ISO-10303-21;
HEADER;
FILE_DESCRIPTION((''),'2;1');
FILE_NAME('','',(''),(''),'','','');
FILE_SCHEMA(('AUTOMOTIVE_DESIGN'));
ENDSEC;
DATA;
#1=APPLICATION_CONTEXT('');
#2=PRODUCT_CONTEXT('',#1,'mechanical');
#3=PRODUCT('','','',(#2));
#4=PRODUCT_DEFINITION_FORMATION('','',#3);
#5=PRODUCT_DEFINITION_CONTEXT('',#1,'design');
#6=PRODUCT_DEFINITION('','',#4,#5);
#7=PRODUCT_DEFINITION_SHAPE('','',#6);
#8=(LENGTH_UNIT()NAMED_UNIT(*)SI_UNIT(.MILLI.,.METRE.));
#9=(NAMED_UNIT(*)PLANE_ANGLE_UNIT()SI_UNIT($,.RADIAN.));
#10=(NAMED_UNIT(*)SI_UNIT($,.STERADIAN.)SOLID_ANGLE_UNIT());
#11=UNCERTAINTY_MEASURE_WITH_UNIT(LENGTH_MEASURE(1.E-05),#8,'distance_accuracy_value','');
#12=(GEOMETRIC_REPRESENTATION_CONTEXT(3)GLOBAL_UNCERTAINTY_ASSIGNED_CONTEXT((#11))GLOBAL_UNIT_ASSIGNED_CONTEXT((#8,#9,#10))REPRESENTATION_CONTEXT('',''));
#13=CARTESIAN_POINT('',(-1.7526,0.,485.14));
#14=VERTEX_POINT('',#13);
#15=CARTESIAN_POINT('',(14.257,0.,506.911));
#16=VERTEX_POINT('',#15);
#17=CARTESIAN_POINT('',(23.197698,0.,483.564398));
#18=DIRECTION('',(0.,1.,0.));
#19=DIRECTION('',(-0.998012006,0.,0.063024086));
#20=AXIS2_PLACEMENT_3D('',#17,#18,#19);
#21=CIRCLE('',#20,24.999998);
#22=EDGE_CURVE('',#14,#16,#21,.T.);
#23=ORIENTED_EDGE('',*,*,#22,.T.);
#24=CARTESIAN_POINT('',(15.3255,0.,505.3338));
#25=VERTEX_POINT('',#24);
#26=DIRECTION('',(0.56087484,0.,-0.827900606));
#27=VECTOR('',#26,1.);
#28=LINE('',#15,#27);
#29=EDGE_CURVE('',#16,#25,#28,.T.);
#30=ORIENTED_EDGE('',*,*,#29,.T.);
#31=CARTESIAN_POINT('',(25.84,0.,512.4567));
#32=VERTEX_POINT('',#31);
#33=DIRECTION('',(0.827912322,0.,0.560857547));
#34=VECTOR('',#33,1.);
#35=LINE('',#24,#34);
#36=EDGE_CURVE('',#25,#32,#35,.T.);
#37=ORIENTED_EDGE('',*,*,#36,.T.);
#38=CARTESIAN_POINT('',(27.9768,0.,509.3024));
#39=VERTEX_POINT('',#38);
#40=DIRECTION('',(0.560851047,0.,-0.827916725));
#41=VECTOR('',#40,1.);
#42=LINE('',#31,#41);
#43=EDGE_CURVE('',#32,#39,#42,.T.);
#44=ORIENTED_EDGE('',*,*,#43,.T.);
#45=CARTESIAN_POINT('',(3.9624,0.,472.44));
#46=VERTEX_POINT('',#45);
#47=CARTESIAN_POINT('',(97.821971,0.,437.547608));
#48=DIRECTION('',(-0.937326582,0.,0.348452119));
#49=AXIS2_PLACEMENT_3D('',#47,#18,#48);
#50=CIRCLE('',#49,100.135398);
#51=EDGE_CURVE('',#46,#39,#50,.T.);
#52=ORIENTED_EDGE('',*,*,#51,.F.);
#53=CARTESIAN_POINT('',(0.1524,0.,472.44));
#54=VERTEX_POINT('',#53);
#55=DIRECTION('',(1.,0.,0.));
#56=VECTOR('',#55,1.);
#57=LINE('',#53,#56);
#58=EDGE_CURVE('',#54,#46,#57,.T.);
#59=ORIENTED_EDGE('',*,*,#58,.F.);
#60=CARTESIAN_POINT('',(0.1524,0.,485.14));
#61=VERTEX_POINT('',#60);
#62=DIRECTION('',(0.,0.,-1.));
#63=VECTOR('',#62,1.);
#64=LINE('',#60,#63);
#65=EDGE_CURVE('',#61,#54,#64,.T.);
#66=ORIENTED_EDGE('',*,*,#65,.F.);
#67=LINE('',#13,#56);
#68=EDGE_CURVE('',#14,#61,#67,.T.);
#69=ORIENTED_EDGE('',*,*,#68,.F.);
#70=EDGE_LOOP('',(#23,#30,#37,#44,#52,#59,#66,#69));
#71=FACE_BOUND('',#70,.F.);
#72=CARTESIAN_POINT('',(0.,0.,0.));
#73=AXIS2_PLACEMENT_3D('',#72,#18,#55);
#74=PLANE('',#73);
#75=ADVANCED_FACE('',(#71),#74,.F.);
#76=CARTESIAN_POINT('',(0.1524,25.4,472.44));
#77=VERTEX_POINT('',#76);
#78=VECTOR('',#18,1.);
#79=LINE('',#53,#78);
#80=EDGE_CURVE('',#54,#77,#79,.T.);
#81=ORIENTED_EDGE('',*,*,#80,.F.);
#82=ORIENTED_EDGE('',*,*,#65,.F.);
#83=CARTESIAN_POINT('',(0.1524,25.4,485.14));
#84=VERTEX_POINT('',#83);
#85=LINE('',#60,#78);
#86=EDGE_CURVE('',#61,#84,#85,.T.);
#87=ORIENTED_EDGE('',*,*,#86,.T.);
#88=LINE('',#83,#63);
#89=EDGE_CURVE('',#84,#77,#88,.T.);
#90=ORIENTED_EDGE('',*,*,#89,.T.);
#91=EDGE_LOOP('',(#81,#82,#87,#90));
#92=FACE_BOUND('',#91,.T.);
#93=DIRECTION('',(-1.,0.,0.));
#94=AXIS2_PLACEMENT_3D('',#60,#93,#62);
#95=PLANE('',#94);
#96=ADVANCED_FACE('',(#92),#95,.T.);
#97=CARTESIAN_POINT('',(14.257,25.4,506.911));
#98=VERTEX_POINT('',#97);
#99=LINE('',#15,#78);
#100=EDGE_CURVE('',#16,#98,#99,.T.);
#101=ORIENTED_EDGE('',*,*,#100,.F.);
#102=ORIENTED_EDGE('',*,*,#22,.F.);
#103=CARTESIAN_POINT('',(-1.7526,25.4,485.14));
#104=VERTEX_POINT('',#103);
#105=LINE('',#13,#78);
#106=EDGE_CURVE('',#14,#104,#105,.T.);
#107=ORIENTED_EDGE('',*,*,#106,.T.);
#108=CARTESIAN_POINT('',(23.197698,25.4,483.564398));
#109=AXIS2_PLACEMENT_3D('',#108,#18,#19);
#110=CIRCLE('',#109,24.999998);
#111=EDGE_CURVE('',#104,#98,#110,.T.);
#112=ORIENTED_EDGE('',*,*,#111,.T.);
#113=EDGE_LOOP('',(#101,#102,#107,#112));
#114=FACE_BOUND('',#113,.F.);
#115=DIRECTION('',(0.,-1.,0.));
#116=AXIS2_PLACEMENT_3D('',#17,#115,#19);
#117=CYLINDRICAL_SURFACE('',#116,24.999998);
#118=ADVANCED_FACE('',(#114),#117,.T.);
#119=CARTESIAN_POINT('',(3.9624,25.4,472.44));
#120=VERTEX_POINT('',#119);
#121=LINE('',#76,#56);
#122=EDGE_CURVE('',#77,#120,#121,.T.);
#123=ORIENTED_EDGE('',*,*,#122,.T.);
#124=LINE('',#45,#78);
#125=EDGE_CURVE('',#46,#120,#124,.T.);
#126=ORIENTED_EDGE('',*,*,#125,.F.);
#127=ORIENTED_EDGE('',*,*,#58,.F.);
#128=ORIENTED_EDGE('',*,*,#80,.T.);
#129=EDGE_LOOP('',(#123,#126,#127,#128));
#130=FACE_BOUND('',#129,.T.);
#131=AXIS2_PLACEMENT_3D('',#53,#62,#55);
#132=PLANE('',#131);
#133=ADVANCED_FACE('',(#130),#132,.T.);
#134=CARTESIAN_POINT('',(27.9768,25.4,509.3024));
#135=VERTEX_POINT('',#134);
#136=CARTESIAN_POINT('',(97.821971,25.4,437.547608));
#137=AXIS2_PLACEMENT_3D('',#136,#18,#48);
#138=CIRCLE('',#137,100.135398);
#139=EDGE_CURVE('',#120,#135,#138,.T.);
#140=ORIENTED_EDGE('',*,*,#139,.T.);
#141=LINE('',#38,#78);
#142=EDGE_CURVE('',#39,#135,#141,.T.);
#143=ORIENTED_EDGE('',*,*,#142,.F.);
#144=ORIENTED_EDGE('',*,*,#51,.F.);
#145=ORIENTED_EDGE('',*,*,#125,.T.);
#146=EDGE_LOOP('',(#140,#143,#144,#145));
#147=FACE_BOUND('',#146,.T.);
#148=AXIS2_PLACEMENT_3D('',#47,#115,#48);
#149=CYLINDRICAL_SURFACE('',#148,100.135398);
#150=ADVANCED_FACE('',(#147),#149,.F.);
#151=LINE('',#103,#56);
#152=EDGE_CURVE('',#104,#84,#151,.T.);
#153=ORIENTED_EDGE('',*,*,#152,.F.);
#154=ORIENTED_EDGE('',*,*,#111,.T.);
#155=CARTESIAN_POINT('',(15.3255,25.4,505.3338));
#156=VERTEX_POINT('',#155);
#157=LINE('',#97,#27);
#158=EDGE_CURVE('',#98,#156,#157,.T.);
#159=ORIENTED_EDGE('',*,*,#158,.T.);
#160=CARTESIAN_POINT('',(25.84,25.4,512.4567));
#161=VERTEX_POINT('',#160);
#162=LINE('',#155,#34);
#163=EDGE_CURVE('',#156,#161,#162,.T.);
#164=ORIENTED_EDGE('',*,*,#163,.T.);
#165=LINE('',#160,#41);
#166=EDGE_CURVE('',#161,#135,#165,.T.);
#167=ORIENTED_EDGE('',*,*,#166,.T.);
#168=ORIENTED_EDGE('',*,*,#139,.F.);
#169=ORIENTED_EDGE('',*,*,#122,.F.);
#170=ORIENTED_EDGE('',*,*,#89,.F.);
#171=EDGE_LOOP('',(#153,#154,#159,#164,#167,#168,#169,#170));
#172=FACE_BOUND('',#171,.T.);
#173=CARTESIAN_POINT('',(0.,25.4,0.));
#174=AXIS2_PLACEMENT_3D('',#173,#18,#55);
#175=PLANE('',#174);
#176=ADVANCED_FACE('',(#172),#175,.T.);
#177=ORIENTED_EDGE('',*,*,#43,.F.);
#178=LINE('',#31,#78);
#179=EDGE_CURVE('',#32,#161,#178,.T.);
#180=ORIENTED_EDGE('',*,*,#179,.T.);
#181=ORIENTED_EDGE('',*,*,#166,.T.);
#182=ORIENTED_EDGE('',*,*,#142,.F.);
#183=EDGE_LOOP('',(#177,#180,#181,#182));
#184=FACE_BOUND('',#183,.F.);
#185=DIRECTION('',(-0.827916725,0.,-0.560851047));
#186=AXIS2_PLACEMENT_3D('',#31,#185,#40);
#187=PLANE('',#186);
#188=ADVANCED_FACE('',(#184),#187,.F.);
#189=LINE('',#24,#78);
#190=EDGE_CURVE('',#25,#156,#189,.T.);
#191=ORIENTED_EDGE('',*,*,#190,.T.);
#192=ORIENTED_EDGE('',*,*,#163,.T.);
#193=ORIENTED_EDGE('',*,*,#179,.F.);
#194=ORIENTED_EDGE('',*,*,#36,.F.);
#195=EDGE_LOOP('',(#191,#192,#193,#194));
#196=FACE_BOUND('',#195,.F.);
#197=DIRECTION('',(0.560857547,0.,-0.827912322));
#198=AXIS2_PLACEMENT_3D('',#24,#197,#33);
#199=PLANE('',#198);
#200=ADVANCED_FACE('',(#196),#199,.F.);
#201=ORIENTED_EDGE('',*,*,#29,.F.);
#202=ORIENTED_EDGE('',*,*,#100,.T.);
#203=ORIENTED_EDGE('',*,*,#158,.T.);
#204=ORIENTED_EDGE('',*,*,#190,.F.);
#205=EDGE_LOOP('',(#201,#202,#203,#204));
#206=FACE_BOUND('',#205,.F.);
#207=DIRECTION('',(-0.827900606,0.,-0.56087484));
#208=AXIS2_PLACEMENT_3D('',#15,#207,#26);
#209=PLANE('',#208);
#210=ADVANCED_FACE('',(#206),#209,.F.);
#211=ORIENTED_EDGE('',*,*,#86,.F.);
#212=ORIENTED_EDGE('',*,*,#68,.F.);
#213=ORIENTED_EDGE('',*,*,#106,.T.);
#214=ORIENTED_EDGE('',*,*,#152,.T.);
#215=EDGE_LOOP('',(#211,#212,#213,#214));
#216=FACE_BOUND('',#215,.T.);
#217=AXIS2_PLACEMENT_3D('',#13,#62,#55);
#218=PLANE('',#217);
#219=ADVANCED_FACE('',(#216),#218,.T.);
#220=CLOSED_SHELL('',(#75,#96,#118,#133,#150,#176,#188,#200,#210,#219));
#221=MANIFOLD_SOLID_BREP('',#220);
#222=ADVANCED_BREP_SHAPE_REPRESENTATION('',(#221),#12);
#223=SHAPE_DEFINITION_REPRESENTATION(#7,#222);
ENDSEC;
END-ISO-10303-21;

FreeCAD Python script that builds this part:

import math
import FreeCAD as App
import Part
import Sketcher
Q = App.Units.Quantity

doc = App.newDocument("Part")
params = doc.addObject("Spreadsheet::Sheet", "Params")
for row, (alias, value) in enumerate([
    ("sketch1_height", "0.5 in"),
    ("sketch1_length", "0.5 in"),
    ("sketch1_width", "0.15 in"),
    ("sketch1_length2", "0.15 in"),
    ("sketch1_width2", "0.075 in"),
    ("pad1_length", "1 in"),
], start=1):
    params.set(f"A{row}", alias)
    params.set(f"B{row}", "=" + value)
    params.setAlias(f"B{row}", alias)

body = doc.addObject("PartDesign::Body", "Body")

# Sketch on XZ plane
sketch1 = body.newObject("Sketcher::SketchObject", "Sketch")
sketch1.AttachmentSupport = (doc.getObject("XZ_Plane"), [""])
sketch1.MapMode = "FlatFace"
sketch1.addGeometry(Part.ArcOfCircle(Part.Circle(App.Vector(23.1977, 483.5644, 0), App.Vector(0, 0, 1), 25), math.radians(110.954597), math.radians(176.386596)), False)
sketch1.addGeometry(Part.LineSegment(App.Vector(14.257, 506.911, 0), App.Vector(15.3255, 505.3338, 0)), False)
sketch1.addGeometry(Part.LineSegment(App.Vector(15.3255, 505.3338, 0), App.Vector(25.84, 512.4567, 0)), False)
sketch1.addGeometry(Part.LineSegment(App.Vector(25.84, 512.4567, 0), App.Vector(27.9768, 509.3024, 0)), False)
sketch1.addGeometry(Part.ArcOfCircle(Part.Circle(App.Vector(97.822944, 437.546974, 0), App.Vector(0, 0, 1), 100.136532), math.radians(134.2275), math.radians(159.607185)), False)
sketch1.addGeometry(Part.LineSegment(App.Vector(3.9624, 472.44, 0), App.Vector(0.1524, 472.44, 0)), False)
sketch1.addGeometry(Part.LineSegment(App.Vector(0.1524, 472.44, 0), App.Vector(0.1524, 485.14, 0)), False)
sketch1.addGeometry(Part.LineSegment(App.Vector(0.1524, 485.14, 0), App.Vector(-1.7526, 485.14, 0)), False)
sketch1.addConstraint(Sketcher.Constraint("Coincident", 0, 1, 1, 1))
sketch1.addConstraint(Sketcher.Constraint("Coincident", 1, 2, 2, 1))
sketch1.addConstraint(Sketcher.Constraint("Coincident", 2, 2, 3, 1))
sketch1.addConstraint(Sketcher.Constraint("Coincident", 3, 2, 4, 1))
sketch1.addConstraint(Sketcher.Constraint("Coincident", 4, 2, 5, 1))
sketch1.addConstraint(Sketcher.Constraint("Coincident", 5, 2, 6, 1))
sketch1.addConstraint(Sketcher.Constraint("Coincident", 6, 2, 7, 1))
sketch1.addConstraint(Sketcher.Constraint("Coincident", 7, 2, 0, 2))
sketch1.addConstraint(Sketcher.Constraint("Horizontal", 5))
sketch1.addConstraint(Sketcher.Constraint("Vertical", 6))
sketch1.addConstraint(Sketcher.Constraint("Horizontal", 7))
sketch1.addConstraint(Sketcher.Constraint("Perpendicular", 1, 2))
sketch1.addConstraint(Sketcher.Constraint("Perpendicular", 2, 3))
sketch1.addConstraint(Sketcher.Constraint("DistanceY", 6, 1, 6, 2, Q("0.5 in")))
sketch1.addConstraint(Sketcher.Constraint("Distance", 2, Q("0.5 in")))
sketch1.addConstraint(Sketcher.Constraint("DistanceX", 5, 2, 5, 1, Q("0.15 in")))
sketch1.addConstraint(Sketcher.Constraint("DistanceY", -1, 1, 4, 2, Q("18.6 in")))
sketch1.addConstraint(Sketcher.Constraint("Distance", 3, Q("0.15 in")))
sketch1.addConstraint(Sketcher.Constraint("DistanceX", 7, 2, 7, 1, Q("0.075 in")))
sketch1.addConstraint(Sketcher.Constraint("Radius", 0, Q("25 mm")))
sketch1.addConstraint(Sketcher.Constraint("Radius", 4, Q("100.1365 mm")))
sketch1.addConstraint(Sketcher.Constraint("DistanceX", 0, 1, 4, 3, Q("3.29 in")))
sketch1.addConstraint(Sketcher.Constraint("Distance", 1, Q("0.075 in")))
sketch1.addConstraint(Sketcher.Constraint("DistanceX", -1, 1, 4, 2, Q("0.156 in")))
sketch1.addConstraint(Sketcher.Constraint("DistanceX", 0, 3, 4, 3, Q("2.938 in")))
sketch1.addConstraint(Sketcher.Constraint("DistanceY", 1, 2, 3, 2, Q("0.1562441 in")))
sketch1.setExpression("Constraints[13]", "Params.sketch1_height")
sketch1.setExpression("Constraints[14]", "Params.sketch1_length")
sketch1.setExpression("Constraints[15]", "Params.sketch1_width")
sketch1.setExpression("Constraints[17]", "Params.sketch1_length2")
sketch1.setExpression("Constraints[18]", "Params.sketch1_width2")
pad1 = body.newObject("PartDesign::Pad", "Pad")
pad1.Profile = sketch1
pad1.setExpression("Length", "Params.pad1_length")
pad1.Reversed = True

doc.recompute()
